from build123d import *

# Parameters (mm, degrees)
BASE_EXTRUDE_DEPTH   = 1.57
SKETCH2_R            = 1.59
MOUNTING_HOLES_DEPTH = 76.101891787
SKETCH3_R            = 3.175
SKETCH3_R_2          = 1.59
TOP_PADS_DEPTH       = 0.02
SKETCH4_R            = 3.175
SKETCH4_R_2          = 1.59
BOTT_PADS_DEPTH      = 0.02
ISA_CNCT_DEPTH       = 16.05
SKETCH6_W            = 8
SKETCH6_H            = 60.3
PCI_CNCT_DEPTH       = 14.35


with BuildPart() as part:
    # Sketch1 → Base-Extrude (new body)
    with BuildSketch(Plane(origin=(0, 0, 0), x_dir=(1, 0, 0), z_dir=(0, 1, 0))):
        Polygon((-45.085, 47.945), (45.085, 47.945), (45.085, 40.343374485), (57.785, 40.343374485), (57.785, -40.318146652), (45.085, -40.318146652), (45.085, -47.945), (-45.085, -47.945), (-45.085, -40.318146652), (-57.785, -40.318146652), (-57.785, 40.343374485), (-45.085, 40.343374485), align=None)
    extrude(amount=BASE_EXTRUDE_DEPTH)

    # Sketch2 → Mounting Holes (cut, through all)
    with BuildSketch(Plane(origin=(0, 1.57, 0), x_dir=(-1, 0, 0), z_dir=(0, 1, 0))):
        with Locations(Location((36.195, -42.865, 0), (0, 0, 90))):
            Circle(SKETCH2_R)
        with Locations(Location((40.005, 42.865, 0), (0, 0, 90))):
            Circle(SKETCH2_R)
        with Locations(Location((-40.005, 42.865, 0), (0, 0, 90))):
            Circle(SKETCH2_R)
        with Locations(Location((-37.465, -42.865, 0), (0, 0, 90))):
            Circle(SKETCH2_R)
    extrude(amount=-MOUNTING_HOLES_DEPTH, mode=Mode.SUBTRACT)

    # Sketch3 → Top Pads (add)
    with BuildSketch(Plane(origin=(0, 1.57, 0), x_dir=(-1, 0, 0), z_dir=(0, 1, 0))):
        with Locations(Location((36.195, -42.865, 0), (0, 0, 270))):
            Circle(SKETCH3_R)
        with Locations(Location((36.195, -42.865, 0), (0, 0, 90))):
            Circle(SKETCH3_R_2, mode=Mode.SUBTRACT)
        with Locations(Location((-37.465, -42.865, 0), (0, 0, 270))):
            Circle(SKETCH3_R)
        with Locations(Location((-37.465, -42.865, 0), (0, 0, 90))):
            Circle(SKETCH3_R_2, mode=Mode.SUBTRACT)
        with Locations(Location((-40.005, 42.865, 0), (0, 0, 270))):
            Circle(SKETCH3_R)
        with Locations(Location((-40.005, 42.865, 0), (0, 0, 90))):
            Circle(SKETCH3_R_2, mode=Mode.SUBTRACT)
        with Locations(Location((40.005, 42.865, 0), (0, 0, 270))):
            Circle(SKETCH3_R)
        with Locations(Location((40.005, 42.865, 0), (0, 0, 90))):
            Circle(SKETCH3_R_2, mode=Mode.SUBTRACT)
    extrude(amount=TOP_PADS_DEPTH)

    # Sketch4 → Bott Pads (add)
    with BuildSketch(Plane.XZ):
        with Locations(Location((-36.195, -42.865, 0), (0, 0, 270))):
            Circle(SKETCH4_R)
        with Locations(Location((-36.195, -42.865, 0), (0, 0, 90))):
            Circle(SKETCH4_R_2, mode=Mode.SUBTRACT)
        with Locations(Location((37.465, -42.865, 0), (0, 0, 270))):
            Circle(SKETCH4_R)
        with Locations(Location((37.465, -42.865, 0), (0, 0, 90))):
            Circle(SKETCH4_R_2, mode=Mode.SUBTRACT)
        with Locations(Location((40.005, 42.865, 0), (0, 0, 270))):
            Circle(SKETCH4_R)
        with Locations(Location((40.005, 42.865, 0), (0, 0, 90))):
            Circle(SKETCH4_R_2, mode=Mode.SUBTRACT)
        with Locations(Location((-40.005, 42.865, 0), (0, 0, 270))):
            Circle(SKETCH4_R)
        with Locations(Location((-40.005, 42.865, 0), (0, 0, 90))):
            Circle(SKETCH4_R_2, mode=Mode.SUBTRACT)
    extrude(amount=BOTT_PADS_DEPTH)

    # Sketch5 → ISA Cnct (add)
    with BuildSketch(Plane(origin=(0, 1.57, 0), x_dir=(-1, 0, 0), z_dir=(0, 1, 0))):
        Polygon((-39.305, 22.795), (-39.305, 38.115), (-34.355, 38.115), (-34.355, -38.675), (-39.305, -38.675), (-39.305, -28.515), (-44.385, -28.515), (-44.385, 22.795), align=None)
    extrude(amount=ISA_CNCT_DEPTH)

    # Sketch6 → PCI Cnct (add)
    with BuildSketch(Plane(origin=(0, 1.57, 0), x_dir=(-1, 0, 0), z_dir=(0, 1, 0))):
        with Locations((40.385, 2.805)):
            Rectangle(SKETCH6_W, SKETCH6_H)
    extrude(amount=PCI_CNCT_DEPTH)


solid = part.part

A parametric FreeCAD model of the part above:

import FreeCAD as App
import Part
import Sketcher
from FreeCAD import Vector
Q = App.Units.Quantity


def add_polygon(sketch, points):
    """Adds a closed chain of lines whose ends are joined by coincident constraints."""
    first, n = sketch.GeometryCount, len(points)
    for a, b in zip(points, points[1:] + points[:1]):
        sketch.addGeometry(Part.LineSegment(App.Vector(*a, 0), App.Vector(*b, 0)), False)
    for i in range(n):
        sketch.addConstraint(Sketcher.Constraint("Coincident", first + i, 2, first + (i + 1) % n, 1))

doc = App.newDocument("Part")
body = doc.addObject("PartDesign::Body", "Body")

sketch1 = doc.addObject("Sketcher::SketchObject", "Sketch")
body.addObject(sketch1)
sketch1.AttachmentSupport = (doc.XZ_Plane, [""])
sketch1.MapMode = "FlatFace"
add_polygon(sketch1, [(45.085, -47.945), (-45.085, -47.945), (-45.085, -40.343374), (-57.785, -40.343374), (-57.785, 40.318147), (-45.085, 40.318147), (-45.085, 47.945), (45.085, 47.945), (45.085, 40.318147), (57.785, 40.318147), (57.785, -40.343374), (45.085, -40.343374)])
sketch1.addConstraint([
    Sketcher.Constraint("Horizontal", 0),
    Sketcher.Constraint("Vertical", 1),
    Sketcher.Constraint("Horizontal", 2),
    Sketcher.Constraint("Vertical", 3),
    Sketcher.Constraint("Horizontal", 4),
    Sketcher.Constraint("Vertical", 5),
    Sketcher.Constraint("Horizontal", 6),
    Sketcher.Constraint("Vertical", 7),
    Sketcher.Constraint("Horizontal", 8),
    Sketcher.Constraint("Vertical", 9),
    Sketcher.Constraint("Horizontal", 10),
    Sketcher.Constraint("Vertical", 11),
    Sketcher.Constraint("Symmetric", 0, 2, 6, 2, -1, 1),
    Sketcher.Constraint("Symmetric", 4, 2, 7, 2, -2),
    Sketcher.Constraint("Symmetric", 2, 2, 9, 2, -2),
    Sketcher.Constraint("Vertical", 7, 2, 10, 2),
    Sketcher.Constraint("DistanceX", 2, 2, 2, 1, Q("0.5 in")),
    Sketcher.Constraint("DistanceX", 0, 2, 0, 1, Q("3.55 in")),
    Sketcher.Constraint("DistanceY", 3, 1, 3, 2, 80.661521),
    Sketcher.Constraint("DistanceY", 0, 2, -1, 1, 47.945),
    Sketcher.Constraint("DistanceY", 1, 1, 1, 2, 7.601626),
])
pad1 = doc.addObject("PartDesign::Pad", "Pad")
body.addObject(pad1)
pad1.Profile = sketch1
pad1.Length = 1.57
pad1.Reversed = True

sketch2 = doc.addObject("Sketcher::SketchObject", "Sketch001")
body.addObject(sketch2)
sketch2.AttachmentSupport = (doc.XZ_Plane, [""])
sketch2.MapMode = "FlatFace"
sketch2.AttachmentOffset = App.Placement(Vector(0, 0, -1.57), App.Rotation())
sketch2.addGeometry([
    Part.Circle(Vector(-36.195, -42.865, 0), Vector(0, 0, 1), 1.59),
    Part.Circle(Vector(-40.005, 42.865, 0), Vector(0, 0, 1), 1.59),
    Part.Circle(Vector(40.005, 42.865, 0), Vector(0, 0, 1), 1.59),
    Part.Circle(Vector(37.465, -42.865, 0), Vector(0, 0, 1), 1.59),
], False)
sketch2.addConstraint([
    Sketcher.Constraint("Equal", 0, 1),
    Sketcher.Constraint("Equal", 1, 2),
    Sketcher.Constraint("Equal", 2, 3),
    Sketcher.Constraint("Symmetric", 1, 3, 2, 3, -2),
    Sketcher.Constraint("Horizontal", 0, 3, 3, 3),
    Sketcher.Constraint("DistanceX", 0, 3, 2, 3, Q("3 in")),
    Sketcher.Constraint("DistanceX", 0, 3, 3, 3, Q("2.9 in")),
    Sketcher.Constraint("Diameter", 0, 3.18),
    Sketcher.Constraint("DistanceX", 1, 3, 0, 3, Q("0.15 in")),
    Sketcher.Constraint("DistanceY", 0, 3, -1, 1, 42.865),
    Sketcher.Constraint("DistanceY", -1, 1, 1, 3, 42.865),
])
pocket1 = doc.addObject("PartDesign::Pocket", "Pocket")
body.addObject(pocket1)
pocket1.Profile = sketch2
pocket1.Type = "ThroughAll"
pocket1.Reversed = True

sketch3 = doc.addObject("Sketcher::SketchObject", "Sketch002")
body.addObject(sketch3)
sketch3.AttachmentSupport = (doc.XZ_Plane, [""])
sketch3.MapMode = "FlatFace"
sketch3.AttachmentOffset = App.Placement(Vector(0, 0, -1.57), App.Rotation())
sketch3.addGeometry([
    Part.Circle(Vector(-36.195, -42.865, 0), Vector(0, 0, 1), 3.175),
    Part.Circle(Vector(-36.195, -42.865, 0), Vector(0, 0, 1), 1.59),
    Part.Circle(Vector(37.465, -42.865, 0), Vector(0, 0, 1), 3.175),
    Part.Circle(Vector(37.465, -42.865, 0), Vector(0, 0, 1), 1.59),
    Part.Circle(Vector(40.005, 42.865, 0), Vector(0, 0, 1), 3.175),
    Part.Circle(Vector(40.005, 42.865, 0), Vector(0, 0, 1), 1.59),
    Part.Circle(Vector(-40.005, 42.865, 0), Vector(0, 0, 1), 3.175),
    Part.Circle(Vector(-40.005, 42.865, 0), Vector(0, 0, 1), 1.59),
], False)
sketch3.addConstraint([
    Sketcher.Constraint("Coincident", 1, 3, 0, 3),
    Sketcher.Constraint("Coincident", 3, 3, 2, 3),
    Sketcher.Constraint("Coincident", 5, 3, 4, 3),
    Sketcher.Constraint("Coincident", 7, 3, 6, 3),
    Sketcher.Constraint("Equal", 0, 2),
    Sketcher.Constraint("Equal", 1, 3),
    Sketcher.Constraint("Equal", 2, 4),
    Sketcher.Constraint("Equal", 3, 5),
    Sketcher.Constraint("Equal", 4, 6),
    Sketcher.Constraint("Equal", 5, 7),
    Sketcher.Constraint("Symmetric", 4, 3, 6, 3, -2),
    Sketcher.Constraint("Horizontal", 1, 3, 2, 3),
    Sketcher.Constraint("Diameter", 0, Q("0.25 in")),
    Sketcher.Constraint("DistanceX", 0, 3, 4, 3, Q("3 in")),
    Sketcher.Constraint("DistanceX", 0, 3, 2, 3, Q("2.9 in")),
    Sketcher.Constraint("Diameter", 1, 3.18),
    Sketcher.Constraint("DistanceX", 6, 3, 4, 3, Q("3.15 in")),
    Sketcher.Constraint("DistanceY", 0, 3, -1, 1, 42.865),
    Sketcher.Constraint("DistanceY", -1, 1, 4, 3, 42.865),
])
pad2 = doc.addObject("PartDesign::Pad", "Pad001")
body.addObject(pad2)
pad2.Profile = sketch3
pad2.Length = 0.02
pad2.Reversed = True

sketch4 = doc.addObject("Sketcher::SketchObject", "Sketch003")
body.addObject(sketch4)
sketch4.AttachmentSupport = (doc.XZ_Plane, [""])
sketch4.MapMode = "FlatFace"
sketch4.addGeometry([
    Part.Circle(Vector(-36.195, -42.865, 0), Vector(0, 0, 1), 3.175),
    Part.Circle(Vector(-36.195, -42.865, 0), Vector(0, 0, 1), 1.59),
    Part.Circle(Vector(37.465, -42.865, 0), Vector(0, 0, 1), 3.175),
    Part.Circle(Vector(37.465, -42.865, 0), Vector(0, 0, 1), 1.59),
    Part.Circle(Vector(40.005, 42.865, 0), Vector(0, 0, 1), 3.175),
    Part.Circle(Vector(40.005, 42.865, 0), Vector(0, 0, 1), 1.59),
    Part.Circle(Vector(-40.005, 42.865, 0), Vector(0, 0, 1), 3.175),
    Part.Circle(Vector(-40.005, 42.865, 0), Vector(0, 0, 1), 1.59),
], False)
sketch4.addConstraint([
    Sketcher.Constraint("Coincident", 1, 3, 0, 3),
    Sketcher.Constraint("Coincident", 3, 3, 2, 3),
    Sketcher.Constraint("Coincident", 5, 3, 4, 3),
    Sketcher.Constraint("Coincident", 7, 3, 6, 3),
    Sketcher.Constraint("Equal", 0, 2),
    Sketcher.Constraint("Equal", 1, 3),
    Sketcher.Constraint("Equal", 2, 4),
    Sketcher.Constraint("Equal", 3, 5),
    Sketcher.Constraint("Equal", 4, 6),
    Sketcher.Constraint("Equal", 5, 7),
    Sketcher.Constraint("Symmetric", 4, 3, 6, 3, -2),
    Sketcher.Constraint("Horizontal", 1, 3, 2, 3),
    Sketcher.Constraint("Diameter", 0, Q("0.25 in")),
    Sketcher.Constraint("DistanceX", 0, 3, 4, 3, Q("3 in")),
    Sketcher.Constraint("DistanceX", 0, 3, 2, 3, Q("2.9 in")),
    Sketcher.Constraint("Diameter", 1, 3.18),
    Sketcher.Constraint("DistanceX", 6, 3, 4, 3, Q("3.15 in")),
    Sketcher.Constraint("DistanceY", 0, 3, -1, 1, 42.865),
    Sketcher.Constraint("DistanceY", -1, 1, 4, 3, 42.865),
])
pad3 = doc.addObject("PartDesign::Pad", "Pad002")
body.addObject(pad3)
pad3.Profile = sketch4
pad3.Length = 0.02

sketch5 = doc.addObject("Sketcher::SketchObject", "Sketch004")
body.addObject(sketch5)
sketch5.AttachmentSupport = (doc.XZ_Plane, [""])
sketch5.MapMode = "FlatFace"
sketch5.AttachmentOffset = App.Placement(Vector(0, 0, -1.57), App.Rotation())
add_polygon(sketch5, [(39.305, 38.115), (39.305, 22.795), (44.385, 22.795), (44.385, -28.515), (39.305, -28.515), (39.305, -38.675), (34.355, -38.675), (34.355, 38.115)])
sketch5.addConstraint([
    Sketcher.Constraint("Vertical", 0),
    Sketcher.Constraint("Horizontal", 1),
    Sketcher.Constraint("Vertical", 2),
    Sketcher.Constraint("Horizontal", 3),
    Sketcher.Constraint("Vertical", 4),
    Sketcher.Constraint("Horizontal", 5),
    Sketcher.Constraint("Vertical", 6),
    Sketcher.Constraint("Horizontal", 7),
    Sketcher.Constraint("Vertical", 0, 2, 3, 2),
    Sketcher.Constraint("DistanceX", 1, 1, 1, 2, Q("0.2 in")),
    Sketcher.Constraint("DistanceY", 4, 2, 4, 1, Q("0.4 in")),
    Sketcher.Constraint("DistanceX", 5, 2, 5, 1, 4.95),
    Sketcher.Constraint("DistanceY", 0, 2, 0, 1, 15.32),
    Sketcher.Constraint("DistanceY", 2, 2, 2, 1, 51.31),
    Sketcher.Constraint("DistanceX", -1, 1, 0, 2, 39.305),
    Sketcher.Constraint("DistanceY", -1, 1, 0, 2, 22.795),
])
pad4 = doc.addObject("PartDesign::Pad", "Pad003")
body.addObject(pad4)
pad4.Profile = sketch5
pad4.Length = 16.05
pad4.Reversed = True

sketch6 = doc.addObject("Sketcher::SketchObject", "Sketch005")
body.addObject(sketch6)
sketch6.AttachmentSupport = (doc.XZ_Plane, [""])
sketch6.MapMode = "FlatFace"
sketch6.AttachmentOffset = App.Placement(Vector(0, 0, -1.57), App.Rotation())
add_polygon(sketch6, [(-36.385, 32.955), (-36.385, -27.345), (-44.385, -27.345), (-44.385, 32.955)])
sketch6.addConstraint([
    Sketcher.Constraint("Vertical", 0),
    Sketcher.Constraint("Horizontal", 1),
    Sketcher.Constraint("Vertical", 2),
    Sketcher.Constraint("Horizontal", 3),
    Sketcher.Constraint("DistanceX", 1, 2, 1, 1, 8.0),
    Sketcher.Constraint("DistanceY", 0, 2, 0, 1, 60.3),
    Sketcher.Constraint("DistanceX", 0, 2, -1, 1, 36.385),
    Sketcher.Constraint("DistanceY", 0, 2, -1, 1, 27.345),
])
pad5 = doc.addObject("PartDesign::Pad", "Pad004")
body.addObject(pad5)
pad5.Profile = sketch6
pad5.Length = 14.35
pad5.Reversed = True

doc.recompute()
